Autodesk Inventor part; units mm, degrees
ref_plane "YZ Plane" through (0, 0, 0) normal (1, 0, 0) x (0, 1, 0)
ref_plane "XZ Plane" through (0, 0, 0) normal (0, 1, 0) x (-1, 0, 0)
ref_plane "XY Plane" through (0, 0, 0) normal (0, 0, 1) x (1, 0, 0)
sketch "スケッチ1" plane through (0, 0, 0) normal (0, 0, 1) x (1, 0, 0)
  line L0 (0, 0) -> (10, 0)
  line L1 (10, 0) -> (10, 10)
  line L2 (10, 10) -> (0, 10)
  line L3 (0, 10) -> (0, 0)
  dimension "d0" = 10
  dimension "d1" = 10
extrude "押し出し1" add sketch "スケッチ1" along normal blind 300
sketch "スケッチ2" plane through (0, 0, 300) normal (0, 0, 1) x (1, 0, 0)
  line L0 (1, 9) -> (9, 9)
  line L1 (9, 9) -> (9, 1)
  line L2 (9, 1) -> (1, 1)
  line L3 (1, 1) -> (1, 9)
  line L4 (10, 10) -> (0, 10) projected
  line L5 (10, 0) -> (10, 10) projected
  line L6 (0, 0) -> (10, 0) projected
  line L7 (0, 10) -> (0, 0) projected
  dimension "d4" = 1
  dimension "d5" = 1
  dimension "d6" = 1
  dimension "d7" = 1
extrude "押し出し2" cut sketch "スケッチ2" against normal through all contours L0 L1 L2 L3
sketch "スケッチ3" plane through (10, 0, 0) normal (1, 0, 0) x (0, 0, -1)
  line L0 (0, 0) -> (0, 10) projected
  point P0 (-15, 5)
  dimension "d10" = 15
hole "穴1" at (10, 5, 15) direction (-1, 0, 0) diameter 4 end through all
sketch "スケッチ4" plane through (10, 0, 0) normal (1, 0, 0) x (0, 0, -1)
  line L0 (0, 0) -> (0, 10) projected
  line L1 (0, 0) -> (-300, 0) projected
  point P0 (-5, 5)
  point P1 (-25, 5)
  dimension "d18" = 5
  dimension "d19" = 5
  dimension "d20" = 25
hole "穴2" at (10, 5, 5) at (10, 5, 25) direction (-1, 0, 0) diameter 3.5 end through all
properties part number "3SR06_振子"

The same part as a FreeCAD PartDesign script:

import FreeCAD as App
import Part
import Sketcher
from FreeCAD import Vector

doc = App.newDocument("Part")
body = doc.addObject("PartDesign::Body", "Body")

sketch1 = body.newObject("Sketcher::SketchObject", "Sketch")
sketch1.AttachmentSupport = (doc.getObject("XY_Plane"), [""])
sketch1.MapMode = "FlatFace"
sketch1.addGeometry([
    Part.LineSegment(Vector(0, 10, 0), Vector(0, 0, 0)),
    Part.LineSegment(Vector(0, 0, 0), Vector(10, 0, 0)),
    Part.LineSegment(Vector(10, 0, 0), Vector(10, 10, 0)),
    Part.LineSegment(Vector(10, 10, 0), Vector(0, 10, 0)),
], False)
sketch1.addConstraint([
    Sketcher.Constraint("Coincident", 0, 2, 1, 1),
    Sketcher.Constraint("Coincident", 1, 2, 2, 1),
    Sketcher.Constraint("Coincident", 2, 2, 3, 1),
    Sketcher.Constraint("Coincident", 3, 2, 0, 1),
    Sketcher.Constraint("Vertical", 0),
    Sketcher.Constraint("Horizontal", 1),
    Sketcher.Constraint("Vertical", 2),
    Sketcher.Constraint("Horizontal", 3),
    Sketcher.Constraint("Coincident", 0, 2, -1, 1),
    Sketcher.Constraint("Equal", 3, 0),
    Sketcher.Constraint("DistanceX", 1, 1, 1, 2, 10.0),
])
pad1 = body.newObject("PartDesign::Pad", "Pad")
pad1.Profile = sketch1
pad1.Length = 300

sketch2 = body.newObject("Sketcher::SketchObject", "Sketch001")
sketch2.AttachmentSupport = (doc.getObject("XY_Plane"), [""])
sketch2.MapMode = "FlatFace"
sketch2.AttachmentOffset = App.Placement(Vector(0, 0, 300), App.Rotation())
sketch2.addGeometry([
    Part.LineSegment(Vector(9, 9, 0), Vector(1, 9, 0)),
    Part.LineSegment(Vector(1, 9, 0), Vector(1, 1, 0)),
    Part.LineSegment(Vector(1, 1, 0), Vector(9, 1, 0)),
    Part.LineSegment(Vector(9, 1, 0), Vector(9, 9, 0)),
], False)
sketch2.addConstraint([
    Sketcher.Constraint("Coincident", 0, 2, 1, 1),
    Sketcher.Constraint("Coincident", 1, 2, 2, 1),
    Sketcher.Constraint("Coincident", 2, 2, 3, 1),
    Sketcher.Constraint("Coincident", 3, 2, 0, 1),
    Sketcher.Constraint("Horizontal", 0),
    Sketcher.Constraint("Vertical", 1),
    Sketcher.Constraint("Horizontal", 2),
    Sketcher.Constraint("Vertical", 3),
    Sketcher.Constraint("Equal", 2, 1),
    Sketcher.Constraint("DistanceX", -1, 1, 0, 2, 1.0),
    Sketcher.Constraint("DistanceY", -1, 1, 1, 2, 1.0),
    Sketcher.Constraint("DistanceX", 0, 2, 0, 1, 8.0),
])
pocket1 = body.newObject("PartDesign::Pocket", "Pocket")
pocket1.Profile = sketch2
pocket1.Type = "ThroughAll"

sketch3 = body.newObject("Sketcher::SketchObject", "Sketch002")
sketch3.AttachmentSupport = (doc.getObject("YZ_Plane"), [""])
sketch3.MapMode = "FlatFace"
sketch3.AttachmentOffset = App.Placement(Vector(0, 0, 10), App.Rotation())
sketch3.addGeometry(Part.Circle(Vector(5, 15, 0), Vector(0, 0, 1), 2), False)
sketch3.addConstraint([
    Sketcher.Constraint("Diameter", 0, 4.0),
    Sketcher.Constraint("DistanceX", -1, 1, 0, 3, 5.0),
    Sketcher.Constraint("DistanceY", -1, 1, 0, 3, 15.0),
])
doc.recompute()
hole = body.newObject("PartDesign::Hole", "Hole")
hole.Profile = sketch3
hole.ThreadType = "None"
hole.Diameter = 4
hole.DepthType = "ThroughAll"

sketch4 = body.newObject("Sketcher::SketchObject", "Sketch003")
sketch4.AttachmentSupport = (doc.getObject("YZ_Plane"), [""])
sketch4.MapMode = "FlatFace"
sketch4.AttachmentOffset = App.Placement(Vector(0, 0, 10), App.Rotation())
sketch4.addGeometry([
    Part.Circle(Vector(5, 5, 0), Vector(0, 0, 1), 1.8),
    Part.Circle(Vector(5, 25, 0), Vector(0, 0, 1), 1.8),
], False)
sketch4.addConstraint([
    Sketcher.Constraint("Equal", 0, 1),
    Sketcher.Constraint("Vertical", 0, 3, 1, 3),
    Sketcher.Constraint("Diameter", 0, 3.5),
    Sketcher.Constraint("DistanceX", -1, 1, 0, 3, 5.0),
    Sketcher.Constraint("DistanceY", -1, 1, 0, 3, 5.0),
    Sketcher.Constraint("DistanceY", -1, 1, 1, 3, 25.0),
])
doc.recompute()
hole2 = body.newObject("PartDesign::Hole", "Hole001")
hole2.Profile = sketch4
hole2.ThreadType = "None"
hole2.Diameter = 3.5
hole2.DepthType = "ThroughAll"

doc.recompute()
